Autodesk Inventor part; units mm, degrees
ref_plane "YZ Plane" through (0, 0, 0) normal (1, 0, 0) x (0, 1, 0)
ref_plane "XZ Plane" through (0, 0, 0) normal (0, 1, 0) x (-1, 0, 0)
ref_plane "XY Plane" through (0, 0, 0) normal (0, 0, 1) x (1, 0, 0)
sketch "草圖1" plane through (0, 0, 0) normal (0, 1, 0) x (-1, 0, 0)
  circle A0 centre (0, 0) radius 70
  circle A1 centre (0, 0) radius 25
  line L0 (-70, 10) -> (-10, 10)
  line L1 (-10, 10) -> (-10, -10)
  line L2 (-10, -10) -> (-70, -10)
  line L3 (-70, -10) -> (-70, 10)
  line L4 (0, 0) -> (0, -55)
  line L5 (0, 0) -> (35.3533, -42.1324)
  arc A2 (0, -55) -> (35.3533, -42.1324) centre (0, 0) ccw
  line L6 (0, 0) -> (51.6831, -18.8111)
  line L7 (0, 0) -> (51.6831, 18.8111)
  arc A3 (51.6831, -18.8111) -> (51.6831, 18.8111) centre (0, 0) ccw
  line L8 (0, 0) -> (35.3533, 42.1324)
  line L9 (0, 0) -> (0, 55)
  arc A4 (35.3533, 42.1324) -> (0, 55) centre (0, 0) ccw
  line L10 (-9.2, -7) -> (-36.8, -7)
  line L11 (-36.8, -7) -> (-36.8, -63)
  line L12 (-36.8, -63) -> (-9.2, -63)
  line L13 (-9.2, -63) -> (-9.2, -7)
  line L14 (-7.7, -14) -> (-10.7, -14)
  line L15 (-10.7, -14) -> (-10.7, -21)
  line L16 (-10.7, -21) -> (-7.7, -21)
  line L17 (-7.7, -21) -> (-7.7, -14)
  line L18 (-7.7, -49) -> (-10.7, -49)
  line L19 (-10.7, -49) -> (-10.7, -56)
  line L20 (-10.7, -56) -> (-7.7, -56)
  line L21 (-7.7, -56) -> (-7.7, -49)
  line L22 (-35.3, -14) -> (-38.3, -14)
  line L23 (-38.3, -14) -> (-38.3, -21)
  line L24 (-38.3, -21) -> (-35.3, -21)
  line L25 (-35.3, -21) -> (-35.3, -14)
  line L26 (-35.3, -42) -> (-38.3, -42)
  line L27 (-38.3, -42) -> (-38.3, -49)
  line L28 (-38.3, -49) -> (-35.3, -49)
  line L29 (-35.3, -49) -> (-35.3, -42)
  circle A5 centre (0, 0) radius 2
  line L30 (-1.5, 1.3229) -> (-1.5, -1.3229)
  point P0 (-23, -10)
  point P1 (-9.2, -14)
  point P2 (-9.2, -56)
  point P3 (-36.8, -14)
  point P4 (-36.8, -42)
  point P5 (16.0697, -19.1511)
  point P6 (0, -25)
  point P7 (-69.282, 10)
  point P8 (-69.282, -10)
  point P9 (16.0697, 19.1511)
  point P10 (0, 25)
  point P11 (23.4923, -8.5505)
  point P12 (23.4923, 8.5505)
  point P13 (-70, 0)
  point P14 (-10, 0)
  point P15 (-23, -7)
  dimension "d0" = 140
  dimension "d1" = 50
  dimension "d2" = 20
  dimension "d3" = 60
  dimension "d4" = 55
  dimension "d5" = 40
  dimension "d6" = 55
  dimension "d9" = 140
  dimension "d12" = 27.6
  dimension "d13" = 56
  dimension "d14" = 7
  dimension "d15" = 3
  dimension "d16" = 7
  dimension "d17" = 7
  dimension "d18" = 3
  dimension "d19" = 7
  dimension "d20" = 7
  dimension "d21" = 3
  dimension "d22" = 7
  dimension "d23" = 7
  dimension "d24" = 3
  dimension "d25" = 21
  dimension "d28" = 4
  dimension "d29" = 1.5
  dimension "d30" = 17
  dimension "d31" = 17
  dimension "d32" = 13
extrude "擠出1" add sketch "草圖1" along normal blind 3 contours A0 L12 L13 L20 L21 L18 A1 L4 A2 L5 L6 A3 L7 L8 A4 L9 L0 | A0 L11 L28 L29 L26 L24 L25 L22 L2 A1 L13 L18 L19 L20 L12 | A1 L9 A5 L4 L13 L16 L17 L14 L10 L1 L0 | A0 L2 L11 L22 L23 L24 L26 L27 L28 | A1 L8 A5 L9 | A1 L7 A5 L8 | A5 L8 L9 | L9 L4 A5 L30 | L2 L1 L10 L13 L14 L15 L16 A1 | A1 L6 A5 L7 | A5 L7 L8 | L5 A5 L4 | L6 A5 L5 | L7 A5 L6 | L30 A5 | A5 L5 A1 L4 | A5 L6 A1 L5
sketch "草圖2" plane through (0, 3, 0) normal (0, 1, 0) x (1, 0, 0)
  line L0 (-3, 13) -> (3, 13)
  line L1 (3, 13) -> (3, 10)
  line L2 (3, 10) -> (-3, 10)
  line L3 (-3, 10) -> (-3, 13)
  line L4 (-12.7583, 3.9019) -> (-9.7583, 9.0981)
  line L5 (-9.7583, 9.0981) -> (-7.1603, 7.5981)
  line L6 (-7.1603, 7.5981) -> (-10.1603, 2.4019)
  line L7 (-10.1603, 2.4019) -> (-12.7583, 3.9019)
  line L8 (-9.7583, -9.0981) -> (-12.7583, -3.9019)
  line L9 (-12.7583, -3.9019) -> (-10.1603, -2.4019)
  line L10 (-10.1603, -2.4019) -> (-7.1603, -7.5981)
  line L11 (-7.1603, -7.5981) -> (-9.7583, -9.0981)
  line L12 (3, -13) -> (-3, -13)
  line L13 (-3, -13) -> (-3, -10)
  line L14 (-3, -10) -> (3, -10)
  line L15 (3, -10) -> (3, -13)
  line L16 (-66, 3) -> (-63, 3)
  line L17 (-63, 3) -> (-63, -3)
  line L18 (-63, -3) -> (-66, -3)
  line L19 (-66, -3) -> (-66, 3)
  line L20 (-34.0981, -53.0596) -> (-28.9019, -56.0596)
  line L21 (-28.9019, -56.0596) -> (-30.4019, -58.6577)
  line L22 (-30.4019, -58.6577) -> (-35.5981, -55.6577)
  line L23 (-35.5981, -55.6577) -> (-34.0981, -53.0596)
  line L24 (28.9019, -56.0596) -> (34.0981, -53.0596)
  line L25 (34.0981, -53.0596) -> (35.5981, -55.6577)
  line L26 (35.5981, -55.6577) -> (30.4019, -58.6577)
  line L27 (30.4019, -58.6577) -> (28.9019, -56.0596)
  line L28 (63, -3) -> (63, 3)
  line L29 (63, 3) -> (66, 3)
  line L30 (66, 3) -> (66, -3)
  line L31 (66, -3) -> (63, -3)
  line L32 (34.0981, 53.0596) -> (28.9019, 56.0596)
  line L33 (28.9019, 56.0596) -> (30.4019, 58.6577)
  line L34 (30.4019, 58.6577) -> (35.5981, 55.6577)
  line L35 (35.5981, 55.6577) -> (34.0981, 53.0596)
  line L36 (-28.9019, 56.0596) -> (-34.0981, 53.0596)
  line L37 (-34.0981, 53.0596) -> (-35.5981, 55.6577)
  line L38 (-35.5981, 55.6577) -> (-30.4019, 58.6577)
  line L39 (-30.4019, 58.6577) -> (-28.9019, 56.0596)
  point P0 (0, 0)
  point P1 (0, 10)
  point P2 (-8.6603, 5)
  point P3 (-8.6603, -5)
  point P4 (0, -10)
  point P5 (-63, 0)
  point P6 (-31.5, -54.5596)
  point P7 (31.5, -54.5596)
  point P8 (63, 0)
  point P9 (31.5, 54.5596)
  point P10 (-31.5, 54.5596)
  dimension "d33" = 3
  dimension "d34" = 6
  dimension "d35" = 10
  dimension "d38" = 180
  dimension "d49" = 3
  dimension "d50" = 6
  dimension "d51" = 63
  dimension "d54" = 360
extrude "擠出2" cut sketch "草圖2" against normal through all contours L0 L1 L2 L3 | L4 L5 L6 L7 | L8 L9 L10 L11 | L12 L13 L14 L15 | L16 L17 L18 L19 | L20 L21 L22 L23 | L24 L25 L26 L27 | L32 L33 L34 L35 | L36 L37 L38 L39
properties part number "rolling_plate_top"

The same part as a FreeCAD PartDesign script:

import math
import FreeCAD as App
import Part
import Sketcher
Q = App.Units.Quantity


def add_polygon(sketch, points):
    """Adds a closed chain of lines whose ends are joined by coincident constraints."""
    first, n = sketch.GeometryCount, len(points)
    for a, b in zip(points, points[1:] + points[:1]):
        sketch.addGeometry(Part.LineSegment(App.Vector(*a, 0), App.Vector(*b, 0)), False)
    for i in range(n):
        sketch.addConstraint(Sketcher.Constraint("Coincident", first + i, 2, first + (i + 1) % n, 1))

doc = App.newDocument("Part")
params = doc.addObject("Spreadsheet::Sheet", "Params")
for row, (alias, value) in enumerate([
    ("sketch1_radius", "70 mm"),
    ("sketch1_radius2", "25 mm"),
    ("sketch1_radius3", "55 mm"),
    ("sketch1_width", "3 mm"),
    ("sketch1_height", "20 mm"),
    ("pad1_length", "3 mm"),
    ("sketch2_width", "6 mm"),
    ("sketch2_width2", "3 mm"),
    ("sketch2_length", "6 mm"),
    ("sketch2_length2", "3 mm"),
], start=1):
    params.set(f"A{row}", alias)
    params.set(f"B{row}", "=" + value)
    params.setAlias(f"B{row}", alias)

body = doc.addObject("PartDesign::Body", "Body")

# Sketch on XZ plane
sketch1 = body.newObject("Sketcher::SketchObject", "Sketch")
sketch1.AttachmentSupport = (doc.getObject("XZ_Plane"), [""])
sketch1.MapMode = "FlatFace"
sketch1.addGeometry(Part.LineSegment(App.Vector(69.3, 10, 0), App.Vector(10, 10, 0)), False)  # 0
sketch1.addGeometry(Part.LineSegment(App.Vector(10, 10, 0), App.Vector(10, -10, 0)), False)  # 1
sketch1.addGeometry(Part.LineSegment(App.Vector(10, -10, 0), App.Vector(69.3, -10, 0)), False)  # 2
sketch1.addGeometry(Part.ArcOfCircle(Part.Circle(App.Vector(0, 0, 0), App.Vector(0, 0, 1), 70), math.radians(8), math.radians(352)), False)  # 3
add_polygon(sketch1, [(7.7, -56), (10.7, -56), (10.7, -49), (7.7, -49)])  # lines 4-7
sketch1.addGeometry(Part.LineSegment(App.Vector(0, -55, 0), App.Vector(0, -25, 0)), False)  # 8
sketch1.addGeometry(Part.ArcOfCircle(Part.Circle(App.Vector(0, 0, 0), App.Vector(0, 0, 1), 25), math.radians(-130), math.radians(-90)), False)  # 9
sketch1.addGeometry(Part.LineSegment(App.Vector(-16.1, -19.2, 0), App.Vector(-35.4, -42.1, 0)), False)  # 10
sketch1.addGeometry(Part.ArcOfCircle(Part.Circle(App.Vector(0, 0, 0), App.Vector(0, 0, 1), 55), math.radians(-130), math.radians(-90)), False)  # 11
sketch1.addGeometry(Part.LineSegment(App.Vector(-51.7, -18.8, 0), App.Vector(-23.5, -8.6, 0)), False)  # 12
sketch1.addGeometry(Part.ArcOfCircle(Part.Circle(App.Vector(0, 0, 0), App.Vector(0, 0, 1), 25), math.radians(160), math.radians(200)), False)  # 13
sketch1.addGeometry(Part.LineSegment(App.Vector(-23.5, 8.6, 0), App.Vector(-51.7, 18.8, 0)), False)  # 14
sketch1.addGeometry(Part.ArcOfCircle(Part.Circle(App.Vector(0, 0, 0), App.Vector(0, 0, 1), 55), math.radians(160), math.radians(200)), False)  # 15
sketch1.addGeometry(Part.LineSegment(App.Vector(-35.4, 42.1, 0), App.Vector(-16.1, 19.2, 0)), False)  # 16
sketch1.addGeometry(Part.ArcOfCircle(Part.Circle(App.Vector(0, 0, 0), App.Vector(0, 0, 1), 25), math.radians(90), math.radians(130)), False)  # 17
sketch1.addGeometry(Part.LineSegment(App.Vector(0, 25, 0), App.Vector(0, 55, 0)), False)  # 18
sketch1.addGeometry(Part.ArcOfCircle(Part.Circle(App.Vector(0, 0, 0), App.Vector(0, 0, 1), 55), math.radians(90), math.radians(130)), False)  # 19
add_polygon(sketch1, [(35.3, -49), (38.3, -49), (38.3, -42), (35.3, -42)])  # lines 20-23
add_polygon(sketch1, [(35.3, -21), (38.3, -21), (38.3, -14), (35.3, -14)])  # lines 24-27
add_polygon(sketch1, [(7.7, -21), (10.7, -21), (10.7, -14), (7.7, -14)])  # lines 28-31
sketch1.addConstraint(Sketcher.Constraint("Coincident", 0, 2, 1, 1))
sketch1.addConstraint(Sketcher.Constraint("Coincident", 1, 2, 2, 1))
sketch1.addConstraint(Sketcher.Constraint("Coincident", 2, 2, 3, 2))
sketch1.addConstraint(Sketcher.Constraint("Coincident", 3, 1, 0, 1))
sketch1.addConstraint(Sketcher.Constraint("Coincident", 8, 2, 9, 2))
sketch1.addConstraint(Sketcher.Constraint("Coincident", 9, 1, 10, 1))
sketch1.addConstraint(Sketcher.Constraint("Coincident", 10, 2, 11, 1))
sketch1.addConstraint(Sketcher.Constraint("Coincident", 11, 2, 8, 1))
sketch1.addConstraint(Sketcher.Constraint("Coincident", 12, 2, 13, 2))
sketch1.addConstraint(Sketcher.Constraint("Coincident", 13, 1, 14, 1))
sketch1.addConstraint(Sketcher.Constraint("Coincident", 14, 2, 15, 1))
sketch1.addConstraint(Sketcher.Constraint("Coincident", 15, 2, 12, 1))
sketch1.addConstraint(Sketcher.Constraint("Coincident", 16, 2, 17, 2))
sketch1.addConstraint(Sketcher.Constraint("Coincident", 17, 1, 18, 1))
sketch1.addConstraint(Sketcher.Constraint("Coincident", 18, 2, 19, 1))
sketch1.addConstraint(Sketcher.Constraint("Coincident", 19, 2, 16, 1))
sketch1.addConstraint(Sketcher.Constraint("Horizontal", 0))
sketch1.addConstraint(Sketcher.Constraint("Vertical", 1))
sketch1.addConstraint(Sketcher.Constraint("Horizontal", 2))
sketch1.addConstraint(Sketcher.Constraint("Horizontal", 4))
sketch1.addConstraint(Sketcher.Constraint("Vertical", 5))
sketch1.addConstraint(Sketcher.Constraint("Horizontal", 6))
sketch1.addConstraint(Sketcher.Constraint("Vertical", 7))
sketch1.addConstraint(Sketcher.Constraint("Vertical", 8))
sketch1.addConstraint(Sketcher.Constraint("Vertical", 18))
sketch1.addConstraint(Sketcher.Constraint("Horizontal", 20))
sketch1.addConstraint(Sketcher.Constraint("Vertical", 21))
sketch1.addConstraint(Sketcher.Constraint("Horizontal", 22))
sketch1.addConstraint(Sketcher.Constraint("Vertical", 23))
sketch1.addConstraint(Sketcher.Constraint("Horizontal", 24))
sketch1.addConstraint(Sketcher.Constraint("Vertical", 25))
sketch1.addConstraint(Sketcher.Constraint("Horizontal", 26))
sketch1.addConstraint(Sketcher.Constraint("Vertical", 27))
sketch1.addConstraint(Sketcher.Constraint("Horizontal", 28))
sketch1.addConstraint(Sketcher.Constraint("Vertical", 29))
sketch1.addConstraint(Sketcher.Constraint("Horizontal", 30))
sketch1.addConstraint(Sketcher.Constraint("Vertical", 31))
sketch1.addConstraint(Sketcher.Constraint("Coincident", 3, 3, -1, 1))
sketch1.addConstraint(Sketcher.Constraint("Coincident", 9, 3, -1, 1))
sketch1.addConstraint(Sketcher.Constraint("Coincident", 11, 3, -1, 1))
sketch1.addConstraint(Sketcher.Constraint("Coincident", 13, 3, -1, 1))
sketch1.addConstraint(Sketcher.Constraint("Coincident", 15, 3, -1, 1))
sketch1.addConstraint(Sketcher.Constraint("Coincident", 17, 3, -1, 1))
sketch1.addConstraint(Sketcher.Constraint("Coincident", 19, 3, -1, 1))
sketch1.addConstraint(Sketcher.Constraint("Equal", 9, 13))
sketch1.addConstraint(Sketcher.Constraint("Equal", 11, 15))
sketch1.addConstraint(Sketcher.Constraint("Equal", 13, 17))
sketch1.addConstraint(Sketcher.Constraint("Equal", 15, 19))
sketch1.addConstraint(Sketcher.Constraint("PointOnObject", 8, 2, -2))
sketch1.addConstraint(Sketcher.Constraint("PointOnObject", 17, 1, -2))
sketch1.addConstraint(Sketcher.Constraint("Horizontal", 6, 2, 20, 2))
sketch1.addConstraint(Sketcher.Constraint("Horizontal", 27, 2, 28, 2))
sketch1.addConstraint(Sketcher.Constraint("Horizontal", 26, 2, 29, 2))
sketch1.addConstraint(Sketcher.Constraint("Vertical", 2, 2, 3, 1))
sketch1.addConstraint(Sketcher.Constraint("Vertical", 12, 2, 13, 1))
sketch1.addConstraint(Sketcher.Constraint("Vertical", 14, 2, 15, 2))
sketch1.addConstraint(Sketcher.Constraint("Vertical", 9, 1, 16, 2))
sketch1.addConstraint(Sketcher.Constraint("Vertical", 10, 2, 19, 2))
sketch1.addConstraint(Sketcher.Constraint("Vertical", 21, 2, 24, 2))
sketch1.addConstraint(Sketcher.Constraint("Vertical", 23, 2, 26, 2))
sketch1.addConstraint(Sketcher.Constraint("Vertical", 5, 2, 28, 2))
sketch1.addConstraint(Sketcher.Constraint("Vertical", 7, 2, 30, 2))
sketch1.addConstraint(Sketcher.Constraint("Equal", 6, 20))
sketch1.addConstraint(Sketcher.Constraint("Equal", 7, 21))
sketch1.addConstraint(Sketcher.Constraint("Equal", 23, 25))
sketch1.addConstraint(Sketcher.Constraint("Radius", 3, 70.0))
sketch1.addConstraint(Sketcher.Constraint("Radius", 9, 25.0))
sketch1.addConstraint(Sketcher.Constraint("Radius", 11, 55.0))
sketch1.addConstraint(Sketcher.Constraint("DistanceX", 4, 1, 4, 2, 3.0))
sketch1.addConstraint(Sketcher.Constraint("DistanceY", 1, 2, 1, 1, 20.0))
sketch1.addConstraint(Sketcher.Constraint("DistanceY", 5, 1, 5, 2, 7.0))
sketch1.addConstraint(Sketcher.Constraint("Angle", 12, Q("20 deg")))
sketch1.addConstraint(Sketcher.Constraint("Angle", 16, Q("-50 deg")))
sketch1.addConstraint(Sketcher.Constraint("DistanceY", 4, 2, -1, 1, 56.0))
sketch1.addConstraint(Sketcher.Constraint("DistanceY", 24, 2, -1, 1, 21.0))
sketch1.addConstraint(Sketcher.Constraint("DistanceX", 5, 2, 20, 2, 27.6))
sketch1.addConstraint(Sketcher.Constraint("DistanceX", -1, 1, 0, 2, 10.0))
sketch1.addConstraint(Sketcher.Constraint("DistanceX", -1, 1, 4, 2, 10.7))
sketch1.addConstraint(Sketcher.Constraint("DistanceY", 9, 1, 15, 2, 0.34))
sketch1.addConstraint(Sketcher.Constraint("DistanceY", 9, 1, -1, 1, 19.151))
sketch1.setExpression("Constraints[81]", "Params.sketch1_radius")
sketch1.setExpression("Constraints[82]", "Params.sketch1_radius2")
sketch1.setExpression("Constraints[83]", "Params.sketch1_radius3")
sketch1.setExpression("Constraints[84]", "Params.sketch1_width")
sketch1.setExpression("Constraints[85]", "Params.sketch1_height")
pad1 = body.newObject("PartDesign::Pad", "Pad")
pad1.Profile = sketch1
pad1.setExpression("Length", "Params.pad1_length")
pad1.Reversed = True

# Sketch on XZ plane
sketch2 = body.newObject("Sketcher::SketchObject", "Sketch001")
sketch2.AttachmentSupport = (doc.getObject("XZ_Plane"), [""])
sketch2.MapMode = "FlatFace"
sketch2.AttachmentOffset = App.Placement(App.Vector(0, 0, -3), App.Rotation())
add_polygon(sketch2, [(3, -13), (-3, -13), (-3, -10), (3, -10)])  # lines 0-3
add_polygon(sketch2, [(-9.8, -9.1), (-12.8, -3.9), (-10.2, -2.4), (-7.2, -7.6)])  # lines 4-7
add_polygon(sketch2, [(-12.8, 3.9), (-9.8, 9.1), (-7.2, 7.6), (-10.2, 2.4)])  # lines 8-11
add_polygon(sketch2, [(-3, 13), (3, 13), (3, 10), (-3, 10)])  # lines 12-15
add_polygon(sketch2, [(-63, -3), (-66, -3), (-66, 3), (-63, 3)])  # lines 16-19
add_polygon(sketch2, [(-28.9, 56.1), (-34.1, 53.1), (-35.6, 55.7), (-30.4, 58.7)])  # lines 20-23
add_polygon(sketch2, [(34.1, 53.1), (28.9, 56.1), (30.4, 58.7), (35.6, 55.7)])  # lines 24-27
add_polygon(sketch2, [(28.9, -56.1), (34.1, -53.1), (35.6, -55.7), (30.4, -58.7)])  # lines 28-31
add_polygon(sketch2, [(-34.1, -53.1), (-28.9, -56.1), (-30.4, -58.7), (-35.6, -55.7)])  # lines 32-35
sketch2.addConstraint(Sketcher.Constraint("Horizontal", 0))
sketch2.addConstraint(Sketcher.Constraint("Vertical", 1))
sketch2.addConstraint(Sketcher.Constraint("Horizontal", 2))
sketch2.addConstraint(Sketcher.Constraint("Vertical", 3))
sketch2.addConstraint(Sketcher.Constraint("Horizontal", 12))
sketch2.addConstraint(Sketcher.Constraint("Vertical", 13))
sketch2.addConstraint(Sketcher.Constraint("Horizontal", 14))
sketch2.addConstraint(Sketcher.Constraint("Vertical", 15))
sketch2.addConstraint(Sketcher.Constraint("Horizontal", 16))
sketch2.addConstraint(Sketcher.Constraint("Vertical", 17))
sketch2.addConstraint(Sketcher.Constraint("Horizontal", 18))
sketch2.addConstraint(Sketcher.Constraint("Vertical", 19))
sketch2.addConstraint(Sketcher.Constraint("Symmetric", 0, 2, 12, 2, -1, 1))
sketch2.addConstraint(Sketcher.Constraint("Symmetric", 2, 2, 14, 2, -1, 1))
sketch2.addConstraint(Sketcher.Constraint("Symmetric", 20, 2, 28, 2, -1, 1))
sketch2.addConstraint(Sketcher.Constraint("Symmetric", 21, 2, 29, 2, -1, 1))
sketch2.addConstraint(Sketcher.Constraint("Symmetric", 22, 2, 30, 2, -1, 1))
sketch2.addConstraint(Sketcher.Constraint("Symmetric", 23, 2, 31, 2, -1, 1))
sketch2.addConstraint(Sketcher.Constraint("Symmetric", 24, 2, 32, 2, -1, 1))
sketch2.addConstraint(Sketcher.Constraint("Symmetric", 25, 2, 33, 2, -1, 1))
sketch2.addConstraint(Sketcher.Constraint("Symmetric", 26, 2, 34, 2, -1, 1))
sketch2.addConstraint(Sketcher.Constraint("Symmetric", 27, 2, 35, 2, -1, 1))
sketch2.addConstraint(Sketcher.Constraint("Symmetric", 23, 2, 24, 2, -2))
sketch2.addConstraint(Sketcher.Constraint("Symmetric", 22, 2, 25, 2, -2))
sketch2.addConstraint(Sketcher.Constraint("Symmetric", 21, 2, 26, 2, -2))
sketch2.addConstraint(Sketcher.Constraint("Symmetric", 20, 2, 27, 2, -2))
sketch2.addConstraint(Sketcher.Constraint("Symmetric", 7, 2, 8, 2, -1))
sketch2.addConstraint(Sketcher.Constraint("Symmetric", 6, 2, 9, 2, -1))
sketch2.addConstraint(Sketcher.Constraint("Symmetric", 5, 2, 10, 2, -1))
sketch2.addConstraint(Sketcher.Constraint("Symmetric", 4, 2, 11, 2, -1))
sketch2.addConstraint(Sketcher.Constraint("Perpendicular", 4, 5))
sketch2.addConstraint(Sketcher.Constraint("Perpendicular", 5, 6))
sketch2.addConstraint(Sketcher.Constraint("Perpendicular", 6, 7))
sketch2.addConstraint(Sketcher.Constraint("Parallel", 7, 20))
sketch2.addConstraint(Sketcher.Constraint("Perpendicular", 20, 21))
sketch2.addConstraint(Sketcher.Constraint("Perpendicular", 21, 22))
sketch2.addConstraint(Sketcher.Constraint("Perpendicular", 22, 23))
sketch2.addConstraint(Sketcher.Constraint("Vertical", 3, 2, 12, 2))
sketch2.addConstraint(Sketcher.Constraint("Equal", 18, 1))
sketch2.addConstraint(Sketcher.Constraint("Equal", 14, 17))
sketch2.addConstraint(Sketcher.Constraint("Equal", 10, 20))
sketch2.addConstraint(Sketcher.Constraint("Equal", 11, 21))
sketch2.addConstraint(Sketcher.Constraint("DistanceX", 0, 2, 0, 1, 6.0))
sketch2.addConstraint(Sketcher.Constraint("DistanceX", 16, 2, 16, 1, 3.0))
sketch2.addConstraint(Sketcher.Constraint("Distance", 4, 6.0))
sketch2.addConstraint(Sketcher.Constraint("Distance", 5, 3.0))
sketch2.addConstraint(Sketcher.Constraint("DistanceY", 1, 2, -1, 1, 10.0))
sketch2.addConstraint(Sketcher.Constraint("DistanceY", 16, 2, -1, 1, 3.0))
sketch2.addConstraint(Sketcher.Constraint("DistanceX", 18, 2, -1, 1, 63.0))
sketch2.addConstraint(Sketcher.Constraint("DistanceX", 5, 2, 6, 2, 3.0))
sketch2.addConstraint(Sketcher.Constraint("DistanceY", 5, 2, 9, 2, 10.0))
sketch2.addConstraint(Sketcher.Constraint("DistanceX", 20, 2, -1, 1, 34.098))
sketch2.addConstraint(Sketcher.Constraint("DistanceX", 4, 2, -1, 1, 12.7583))
sketch2.addConstraint(Sketcher.Constraint("DistanceY", -1, 1, 20, 2, 53.0596))
sketch2.setExpression("Constraints[78]", "Params.sketch2_width")
sketch2.setExpression("Constraints[79]", "Params.sketch2_width2")
sketch2.setExpression("Constraints[80]", "Params.sketch2_length")
sketch2.setExpression("Constraints[81]", "Params.sketch2_length2")
pocket1 = body.newObject("PartDesign::Pocket", "Pocket")
pocket1.Profile = sketch2
pocket1.Type = "ThroughAll"
pocket1.Reversed = True

doc.recompute()
